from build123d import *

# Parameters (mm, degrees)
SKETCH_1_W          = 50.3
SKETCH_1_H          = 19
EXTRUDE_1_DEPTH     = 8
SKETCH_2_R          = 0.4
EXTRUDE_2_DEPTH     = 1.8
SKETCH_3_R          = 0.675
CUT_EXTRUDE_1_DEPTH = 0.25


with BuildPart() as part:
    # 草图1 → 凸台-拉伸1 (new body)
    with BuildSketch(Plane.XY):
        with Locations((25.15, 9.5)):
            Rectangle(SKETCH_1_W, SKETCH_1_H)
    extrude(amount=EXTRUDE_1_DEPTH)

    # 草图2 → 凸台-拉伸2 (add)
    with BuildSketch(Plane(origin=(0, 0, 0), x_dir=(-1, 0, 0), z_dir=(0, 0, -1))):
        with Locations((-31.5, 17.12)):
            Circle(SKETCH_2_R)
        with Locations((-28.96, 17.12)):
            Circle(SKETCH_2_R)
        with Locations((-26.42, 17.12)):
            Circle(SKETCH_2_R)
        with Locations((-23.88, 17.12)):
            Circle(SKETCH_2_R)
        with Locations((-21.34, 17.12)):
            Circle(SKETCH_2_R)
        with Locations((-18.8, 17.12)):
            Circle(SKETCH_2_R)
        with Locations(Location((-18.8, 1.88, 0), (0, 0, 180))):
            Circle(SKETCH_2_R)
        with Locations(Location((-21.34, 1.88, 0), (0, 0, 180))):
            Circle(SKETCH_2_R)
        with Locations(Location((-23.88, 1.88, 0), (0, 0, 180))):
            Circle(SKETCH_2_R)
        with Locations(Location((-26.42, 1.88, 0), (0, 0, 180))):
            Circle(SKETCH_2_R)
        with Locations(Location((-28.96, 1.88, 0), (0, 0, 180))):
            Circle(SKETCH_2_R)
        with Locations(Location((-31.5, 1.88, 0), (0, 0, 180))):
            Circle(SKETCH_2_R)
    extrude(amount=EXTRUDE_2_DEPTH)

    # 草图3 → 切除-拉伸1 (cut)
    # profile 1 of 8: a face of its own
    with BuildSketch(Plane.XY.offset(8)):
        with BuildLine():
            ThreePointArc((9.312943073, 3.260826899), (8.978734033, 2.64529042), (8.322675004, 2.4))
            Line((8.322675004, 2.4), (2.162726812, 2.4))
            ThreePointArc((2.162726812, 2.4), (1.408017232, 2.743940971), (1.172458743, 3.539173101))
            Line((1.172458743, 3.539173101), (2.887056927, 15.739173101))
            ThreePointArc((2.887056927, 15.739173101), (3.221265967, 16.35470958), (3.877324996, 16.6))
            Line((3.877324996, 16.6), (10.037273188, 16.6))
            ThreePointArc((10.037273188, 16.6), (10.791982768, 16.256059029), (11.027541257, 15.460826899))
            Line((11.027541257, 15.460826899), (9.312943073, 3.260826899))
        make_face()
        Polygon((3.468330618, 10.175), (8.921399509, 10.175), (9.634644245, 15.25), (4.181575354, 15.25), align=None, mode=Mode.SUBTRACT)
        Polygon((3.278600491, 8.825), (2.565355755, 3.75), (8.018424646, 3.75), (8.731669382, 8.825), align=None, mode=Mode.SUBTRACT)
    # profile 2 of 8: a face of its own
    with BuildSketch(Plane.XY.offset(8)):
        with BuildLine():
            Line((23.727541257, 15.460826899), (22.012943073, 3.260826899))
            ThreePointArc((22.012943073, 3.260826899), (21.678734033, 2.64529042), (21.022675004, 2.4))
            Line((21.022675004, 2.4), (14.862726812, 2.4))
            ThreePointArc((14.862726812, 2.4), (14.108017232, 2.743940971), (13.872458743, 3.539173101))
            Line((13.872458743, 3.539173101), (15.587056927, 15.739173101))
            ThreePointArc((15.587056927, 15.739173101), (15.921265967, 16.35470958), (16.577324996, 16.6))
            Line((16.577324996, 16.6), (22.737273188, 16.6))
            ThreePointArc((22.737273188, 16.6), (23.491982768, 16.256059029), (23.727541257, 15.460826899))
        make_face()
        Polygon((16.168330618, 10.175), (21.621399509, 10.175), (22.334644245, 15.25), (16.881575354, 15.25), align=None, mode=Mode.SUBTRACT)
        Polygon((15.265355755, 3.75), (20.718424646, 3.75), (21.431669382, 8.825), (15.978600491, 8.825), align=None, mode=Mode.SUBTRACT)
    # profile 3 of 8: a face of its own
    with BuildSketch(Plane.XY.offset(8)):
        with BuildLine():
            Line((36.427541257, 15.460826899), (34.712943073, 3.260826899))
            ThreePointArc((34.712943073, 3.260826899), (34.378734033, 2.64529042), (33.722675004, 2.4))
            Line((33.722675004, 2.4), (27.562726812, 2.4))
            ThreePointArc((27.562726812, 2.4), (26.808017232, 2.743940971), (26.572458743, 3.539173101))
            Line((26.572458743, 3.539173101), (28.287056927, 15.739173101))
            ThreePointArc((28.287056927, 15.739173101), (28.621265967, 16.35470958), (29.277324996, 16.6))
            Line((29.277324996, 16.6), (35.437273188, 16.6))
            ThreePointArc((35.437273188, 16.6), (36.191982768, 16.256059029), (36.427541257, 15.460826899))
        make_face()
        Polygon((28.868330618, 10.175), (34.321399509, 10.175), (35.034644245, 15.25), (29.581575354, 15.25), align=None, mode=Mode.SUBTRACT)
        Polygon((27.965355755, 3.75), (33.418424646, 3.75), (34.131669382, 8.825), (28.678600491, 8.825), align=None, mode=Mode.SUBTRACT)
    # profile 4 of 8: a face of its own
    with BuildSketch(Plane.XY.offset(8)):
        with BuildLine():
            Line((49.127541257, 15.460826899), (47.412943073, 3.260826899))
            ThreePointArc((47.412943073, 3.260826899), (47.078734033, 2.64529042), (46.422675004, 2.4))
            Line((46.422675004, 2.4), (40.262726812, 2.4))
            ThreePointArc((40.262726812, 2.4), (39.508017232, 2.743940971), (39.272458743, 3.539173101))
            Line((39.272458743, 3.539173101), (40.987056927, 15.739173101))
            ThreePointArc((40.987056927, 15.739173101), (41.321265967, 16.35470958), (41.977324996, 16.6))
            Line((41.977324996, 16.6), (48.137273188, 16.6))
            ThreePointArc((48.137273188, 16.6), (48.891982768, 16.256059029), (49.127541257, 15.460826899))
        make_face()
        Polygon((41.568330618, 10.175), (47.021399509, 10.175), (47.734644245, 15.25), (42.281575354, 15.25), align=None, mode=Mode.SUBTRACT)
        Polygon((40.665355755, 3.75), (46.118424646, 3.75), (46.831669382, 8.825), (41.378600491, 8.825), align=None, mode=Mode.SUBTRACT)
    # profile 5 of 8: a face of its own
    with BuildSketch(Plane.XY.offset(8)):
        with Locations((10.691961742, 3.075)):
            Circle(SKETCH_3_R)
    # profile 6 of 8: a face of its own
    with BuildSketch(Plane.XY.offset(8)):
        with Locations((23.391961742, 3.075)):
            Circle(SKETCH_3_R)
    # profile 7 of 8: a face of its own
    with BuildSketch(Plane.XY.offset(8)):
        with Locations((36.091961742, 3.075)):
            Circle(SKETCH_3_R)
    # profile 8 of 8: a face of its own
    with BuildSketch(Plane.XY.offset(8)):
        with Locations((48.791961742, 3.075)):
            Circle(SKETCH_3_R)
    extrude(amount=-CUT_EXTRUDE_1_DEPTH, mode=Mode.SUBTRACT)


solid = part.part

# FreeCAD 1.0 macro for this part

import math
import FreeCAD as App
import Part
import Sketcher

V = App.Vector
Q = App.Units.Quantity

doc = App.newDocument("Part")
params = doc.addObject("Spreadsheet::Sheet", "Params")
for row, (alias, value) in enumerate([
    ("sketch1_height", "19 mm"),
    ("sketch1_width", "50.3 mm"),
    ("pad1_length", "8 mm"),
    ("sketch2_diameter", "0.8 mm"),
    ("pad2_length", "1.8 mm"),
    ("sketch3_radius", "1 mm"),
    ("sketch3_diameter", "1.35 mm"),
    ("pocket1_length", "0.25 mm"),
], start=1):
    params.set(f"A{row}", alias)
    params.set(f"B{row}", "=" + value)
    params.setAlias(f"B{row}", alias)

body = doc.addObject("PartDesign::Body", "Body")

sketch1 = doc.addObject("Sketcher::SketchObject", "Sketch")
body.addObject(sketch1)
sketch1.AttachmentSupport = (doc.XY_Plane, [""])
sketch1.MapMode = "FlatFace"
sketch1.addGeometry([
    Part.LineSegment(V(0, 19, 0), V(0, 0, 0)),
    Part.LineSegment(V(0, 0, 0), V(50.3, 0, 0)),
    Part.LineSegment(V(50.3, 0, 0), V(50.3, 19, 0)),
    Part.LineSegment(V(50.3, 19, 0), V(0, 19, 0)),
], False)
sketch1.addConstraint([
    Sketcher.Constraint("Coincident", 0, 2, 1, 1),
    Sketcher.Constraint("Coincident", 1, 2, 2, 1),
    Sketcher.Constraint("Coincident", 2, 2, 3, 1),
    Sketcher.Constraint("Coincident", 3, 2, 0, 1),
    Sketcher.Constraint("Vertical", 0),
    Sketcher.Constraint("Horizontal", 1),
    Sketcher.Constraint("Vertical", 2),
    Sketcher.Constraint("Horizontal", 3),
    Sketcher.Constraint("Coincident", 0, 2, -1, 1),
    Sketcher.Constraint("DistanceY", 0, 2, 0, 1, 19.0),
    Sketcher.Constraint("DistanceX", 1, 1, 1, 2, 50.3),
])
sketch1.setExpression("Constraints[9]", "Params.sketch1_height")
sketch1.setExpression("Constraints[10]", "Params.sketch1_width")
pad1 = doc.addObject("PartDesign::Pad", "Pad")
body.addObject(pad1)
pad1.Profile = sketch1
pad1.setExpression("Length", "Params.pad1_length")

sketch2 = doc.addObject("Sketcher::SketchObject", "Sketch001")
body.addObject(sketch2)
sketch2.AttachmentSupport = (doc.XY_Plane, [""])
sketch2.MapMode = "FlatFace"
sketch2.addGeometry([
    Part.Circle(V(31.5, 17.12, 0), V(0, 0, 1), 0.4),
    Part.Circle(V(28.96, 17.12, 0), V(0, 0, 1), 0.4),
    Part.Circle(V(26.42, 17.12, 0), V(0, 0, 1), 0.4),
    Part.Circle(V(23.88, 17.12, 0), V(0, 0, 1), 0.4),
    Part.Circle(V(21.34, 17.12, 0), V(0, 0, 1), 0.4),
    Part.Circle(V(18.8, 17.12, 0), V(0, 0, 1), 0.4),
    Part.Circle(V(18.8, 1.88, 0), V(0, 0, 1), 0.4),
    Part.Circle(V(21.34, 1.88, 0), V(0, 0, 1), 0.4),
    Part.Circle(V(23.88, 1.88, 0), V(0, 0, 1), 0.4),
    Part.Circle(V(26.42, 1.88, 0), V(0, 0, 1), 0.4),
    Part.Circle(V(28.96, 1.88, 0), V(0, 0, 1), 0.4),
    Part.Circle(V(31.5, 1.88, 0), V(0, 0, 1), 0.4),
], False)
sketch2.addConstraint([
    Sketcher.Constraint("Equal", 0, 1),
    Sketcher.Constraint("Equal", 1, 2),
    Sketcher.Constraint("Equal", 2, 3),
    Sketcher.Constraint("Equal", 3, 4),
    Sketcher.Constraint("Equal", 4, 5),
    Sketcher.Constraint("Equal", 5, 6),
    Sketcher.Constraint("Equal", 6, 7),
    Sketcher.Constraint("Equal", 7, 8),
    Sketcher.Constraint("Equal", 8, 9),
    Sketcher.Constraint("Equal", 9, 10),
    Sketcher.Constraint("Equal", 10, 11),
    Sketcher.Constraint("Horizontal", 0, 3, 1, 3),
    Sketcher.Constraint("Horizontal", 1, 3, 2, 3),
    Sketcher.Constraint("Horizontal", 2, 3, 3, 3),
    Sketcher.Constraint("Horizontal", 3, 3, 4, 3),
    Sketcher.Constraint("Horizontal", 4, 3, 5, 3),
    Sketcher.Constraint("Horizontal", 6, 3, 7, 3),
    Sketcher.Constraint("Horizontal", 7, 3, 8, 3),
    Sketcher.Constraint("Horizontal", 8, 3, 9, 3),
    Sketcher.Constraint("Horizontal", 9, 3, 10, 3),
    Sketcher.Constraint("Horizontal", 10, 3, 11, 3),
    Sketcher.Constraint("Vertical", 5, 3, 6, 3),
    Sketcher.Constraint("Vertical", 4, 3, 7, 3),
    Sketcher.Constraint("Vertical", 3, 3, 8, 3),
    Sketcher.Constraint("Vertical", 2, 3, 9, 3),
    Sketcher.Constraint("Vertical", 1, 3, 10, 3),
    Sketcher.Constraint("Vertical", 0, 3, 11, 3),
    Sketcher.Constraint("Diameter", 0, 0.8),
    Sketcher.Constraint("DistanceX", -1, 1, 0, 3, 31.5),
    Sketcher.Constraint("DistanceX", -1, 1, 5, 3, 18.8),
    Sketcher.Constraint("DistanceY", -1, 1, 0, 3, 17.12),
    Sketcher.Constraint("DistanceX", -1, 1, 1, 3, 28.96),
    Sketcher.Constraint("DistanceX", -1, 1, 2, 3, 26.42),
    Sketcher.Constraint("DistanceX", -1, 1, 3, 3, 23.88),
    Sketcher.Constraint("DistanceX", -1, 1, 4, 3, 21.34),
    Sketcher.Constraint("DistanceY", -1, 1, 6, 3, 1.88),
])
sketch2.setExpression("Constraints[27]", "Params.sketch2_diameter")
pad2 = doc.addObject("PartDesign::Pad", "Pad001")
body.addObject(pad2)
pad2.Profile = sketch2
pad2.setExpression("Length", "Params.pad2_length")
pad2.Reversed = True

sketch3 = doc.addObject("Sketcher::SketchObject", "Sketch002")
body.addObject(sketch3)
sketch3.AttachmentSupport = (doc.XY_Plane, [""])
sketch3.MapMode = "FlatFace"
sketch3.AttachmentOffset = App.Placement(V(0, 0, 8), App.Rotation())
sketch3.addGeometry([
    Part.ArcOfCircle(Part.Circle(V(8.322675, 3.4, 0), V(0, 0, 1), 1), math.radians(-90), math.radians(-8)),
    Part.LineSegment(V(9.312943, 3.260827, 0), V(11.027541, 15.460827, 0)),
    Part.ArcOfCircle(Part.Circle(V(10.037273, 15.6, 0), V(0, 0, 1), 1), math.radians(-8), math.radians(90)),
    Part.LineSegment(V(10.037273, 16.6, 0), V(3.877325, 16.6, 0)),
    Part.ArcOfCircle(Part.Circle(V(3.877325, 15.6, 0), V(0, 0, 1), 1), math.radians(90), math.radians(172)),
    Part.LineSegment(V(2.887057, 15.739173, 0), V(1.172459, 3.539173, 0)),
    Part.ArcOfCircle(Part.Circle(V(2.162727, 3.4, 0), V(0, 0, 1), 1), math.radians(172), math.radians(270)),
    Part.LineSegment(V(2.162727, 2.4, 0), V(8.322675, 2.4, 0)),
    Part.LineSegment(V(3.2786, 8.825, 0), V(8.731669, 8.825, 0)),
    Part.LineSegment(V(8.731669, 8.825, 0), V(8.018425, 3.75, 0)),
    Part.LineSegment(V(8.018425, 3.75, 0), V(2.565356, 3.75, 0)),
    Part.LineSegment(V(2.565356, 3.75, 0), V(3.2786, 8.825, 0)),
    Part.LineSegment(V(3.468331, 10.175, 0), V(4.181575, 15.25, 0)),
    Part.LineSegment(V(4.181575, 15.25, 0), V(9.634644, 15.25, 0)),
    Part.LineSegment(V(9.634644, 15.25, 0), V(8.9214, 10.175, 0)),
    Part.LineSegment(V(8.9214, 10.175, 0), V(3.468331, 10.175, 0)),
    Part.LineSegment(V(22.012943, 3.260827, 0), V(23.727541, 15.460827, 0)),
    Part.ArcOfCircle(Part.Circle(V(22.737273, 15.6, 0), V(0, 0, 1), 1), math.radians(-8), math.radians(90)),
    Part.LineSegment(V(22.737273, 16.6, 0), V(16.577325, 16.6, 0)),
    Part.ArcOfCircle(Part.Circle(V(16.577325, 15.6, 0), V(0, 0, 1), 1), math.radians(90), math.radians(172)),
    Part.LineSegment(V(15.587057, 15.739173, 0), V(13.872459, 3.539173, 0)),
    Part.ArcOfCircle(Part.Circle(V(14.862727, 3.4, 0), V(0, 0, 1), 1), math.radians(172), math.radians(270)),
    Part.LineSegment(V(14.862727, 2.4, 0), V(21.022675, 2.4, 0)),
    Part.ArcOfCircle(Part.Circle(V(21.022675, 3.4, 0), V(0, 0, 1), 1), math.radians(-90), math.radians(-8)),
    Part.LineSegment(V(15.265356, 3.75, 0), V(15.9786, 8.825, 0)),
    Part.LineSegment(V(15.9786, 8.825, 0), V(21.431669, 8.825, 0)),
    Part.LineSegment(V(21.431669, 8.825, 0), V(20.718425, 3.75, 0)),
    Part.LineSegment(V(20.718425, 3.75, 0), V(15.265356, 3.75, 0)),
    Part.LineSegment(V(16.168331, 10.175, 0), V(16.881575, 15.25, 0)),
    Part.LineSegment(V(16.881575, 15.25, 0), V(22.334644, 15.25, 0)),
    Part.LineSegment(V(22.334644, 15.25, 0), V(21.6214, 10.175, 0)),
    Part.LineSegment(V(21.6214, 10.175, 0), V(16.168331, 10.175, 0)),
    Part.LineSegment(V(34.712943, 3.260827, 0), V(36.427541, 15.460827, 0)),
    Part.ArcOfCircle(Part.Circle(V(35.437273, 15.6, 0), V(0, 0, 1), 1), math.radians(-8), math.radians(90)),
    Part.LineSegment(V(35.437273, 16.6, 0), V(29.277325, 16.6, 0)),
    Part.ArcOfCircle(Part.Circle(V(29.277325, 15.6, 0), V(0, 0, 1), 1), math.radians(90), math.radians(172)),
    Part.LineSegment(V(28.287057, 15.739173, 0), V(26.572459, 3.539173, 0)),
    Part.ArcOfCircle(Part.Circle(V(27.562727, 3.4, 0), V(0, 0, 1), 1), math.radians(172), math.radians(270)),
    Part.LineSegment(V(27.562727, 2.4, 0), V(33.722675, 2.4, 0)),
    Part.ArcOfCircle(Part.Circle(V(33.722675, 3.4, 0), V(0, 0, 1), 1), math.radians(-90), math.radians(-8)),
    Part.LineSegment(V(27.965356, 3.75, 0), V(28.6786, 8.825, 0)),
    Part.LineSegment(V(28.6786, 8.825, 0), V(34.131669, 8.825, 0)),
    Part.LineSegment(V(34.131669, 8.825, 0), V(33.418425, 3.75, 0)),
    Part.LineSegment(V(33.418425, 3.75, 0), V(27.965356, 3.75, 0)),
    Part.LineSegment(V(28.868331, 10.175, 0), V(29.581575, 15.25, 0)),
    Part.LineSegment(V(29.581575, 15.25, 0), V(35.034644, 15.25, 0)),
    Part.LineSegment(V(35.034644, 15.25, 0), V(34.3214, 10.175, 0)),
    Part.LineSegment(V(34.3214, 10.175, 0), V(28.868331, 10.175, 0)),
    Part.LineSegment(V(47.412943, 3.260827, 0), V(49.127541, 15.460827, 0)),
    Part.ArcOfCircle(Part.Circle(V(48.137273, 15.6, 0), V(0, 0, 1), 1), math.radians(-8), math.radians(90)),
    Part.LineSegment(V(48.137273, 16.6, 0), V(41.977325, 16.6, 0)),
    Part.ArcOfCircle(Part.Circle(V(41.977325, 15.6, 0), V(0, 0, 1), 1), math.radians(90), math.radians(172)),
    Part.LineSegment(V(40.987057, 15.739173, 0), V(39.272459, 3.539173, 0)),
    Part.ArcOfCircle(Part.Circle(V(40.262727, 3.4, 0), V(0, 0, 1), 1), math.radians(172), math.radians(270)),
    Part.LineSegment(V(40.262727, 2.4, 0), V(46.422675, 2.4, 0)),
    Part.ArcOfCircle(Part.Circle(V(46.422675, 3.4, 0), V(0, 0, 1), 1), math.radians(-90), math.radians(-8)),
    Part.LineSegment(V(40.665356, 3.75, 0), V(41.3786, 8.825, 0)),
    Part.LineSegment(V(41.3786, 8.825, 0), V(46.831669, 8.825, 0)),
    Part.LineSegment(V(46.831669, 8.825, 0), V(46.118425, 3.75, 0)),
    Part.LineSegment(V(46.118425, 3.75, 0), V(40.665356, 3.75, 0)),
    Part.LineSegment(V(41.568331, 10.175, 0), V(42.281575, 15.25, 0)),
    Part.LineSegment(V(42.281575, 15.25, 0), V(47.734644, 15.25, 0)),
    Part.LineSegment(V(47.734644, 15.25, 0), V(47.0214, 10.175, 0)),
    Part.LineSegment(V(47.0214, 10.175, 0), V(41.568331, 10.175, 0)),
    Part.Circle(V(10.691962, 3.075, 0), V(0, 0, 1), 0.675),
    Part.Circle(V(23.391962, 3.075, 0), V(0, 0, 1), 0.675),
    Part.Circle(V(36.091962, 3.075, 0), V(0, 0, 1), 0.675),
    Part.Circle(V(48.791962, 3.075, 0), V(0, 0, 1), 0.675),
], False)
sketch3.addConstraint([
    Sketcher.Constraint("Tangent", 0, 2, 1, 1),
    Sketcher.Constraint("Tangent", 1, 2, 2, 1),
    Sketcher.Constraint("Tangent", 2, 2, 3, 1),
    Sketcher.Constraint("Tangent", 3, 2, 4, 1),
    Sketcher.Constraint("Tangent", 4, 2, 5, 1),
    Sketcher.Constraint("Tangent", 5, 2, 6, 1),
    Sketcher.Constraint("Tangent", 6, 2, 7, 1),
    Sketcher.Constraint("Tangent", 7, 2, 0, 1),
    Sketcher.Constraint("Coincident", 8, 2, 9, 1),
    Sketcher.Constraint("Coincident", 9, 2, 10, 1),
    Sketcher.Constraint("Coincident", 10, 2, 11, 1),
    Sketcher.Constraint("Coincident", 11, 2, 8, 1),
    Sketcher.Constraint("Coincident", 12, 2, 13, 1),
    Sketcher.Constraint("Coincident", 13, 2, 14, 1),
    Sketcher.Constraint("Coincident", 14, 2, 15, 1),
    Sketcher.Constraint("Coincident", 15, 2, 12, 1),
    Sketcher.Constraint("Tangent", 16, 2, 17, 1),
    Sketcher.Constraint("Tangent", 17, 2, 18, 1),
    Sketcher.Constraint("Tangent", 18, 2, 19, 1),
    Sketcher.Constraint("Tangent", 19, 2, 20, 1),
    Sketcher.Constraint("Tangent", 20, 2, 21, 1),
    Sketcher.Constraint("Tangent", 21, 2, 22, 1),
    Sketcher.Constraint("Tangent", 22, 2, 23, 1),
    Sketcher.Constraint("Tangent", 23, 2, 16, 1),
    Sketcher.Constraint("Coincident", 24, 2, 25, 1),
    Sketcher.Constraint("Coincident", 25, 2, 26, 1),
    Sketcher.Constraint("Coincident", 26, 2, 27, 1),
    Sketcher.Constraint("Coincident", 27, 2, 24, 1),
    Sketcher.Constraint("Coincident", 28, 2, 29, 1),
    Sketcher.Constraint("Coincident", 29, 2, 30, 1),
    Sketcher.Constraint("Coincident", 30, 2, 31, 1),
    Sketcher.Constraint("Coincident", 31, 2, 28, 1),
    Sketcher.Constraint("Tangent", 32, 2, 33, 1),
    Sketcher.Constraint("Tangent", 33, 2, 34, 1),
    Sketcher.Constraint("Tangent", 34, 2, 35, 1),
    Sketcher.Constraint("Tangent", 35, 2, 36, 1),
    Sketcher.Constraint("Tangent", 36, 2, 37, 1),
    Sketcher.Constraint("Tangent", 37, 2, 38, 1),
    Sketcher.Constraint("Tangent", 38, 2, 39, 1),
    Sketcher.Constraint("Tangent", 39, 2, 32, 1),
    Sketcher.Constraint("Coincident", 40, 2, 41, 1),
    Sketcher.Constraint("Coincident", 41, 2, 42, 1),
    Sketcher.Constraint("Coincident", 42, 2, 43, 1),
    Sketcher.Constraint("Coincident", 43, 2, 40, 1),
    Sketcher.Constraint("Coincident", 44, 2, 45, 1),
    Sketcher.Constraint("Coincident", 45, 2, 46, 1),
    Sketcher.Constraint("Coincident", 46, 2, 47, 1),
    Sketcher.Constraint("Coincident", 47, 2, 44, 1),
    Sketcher.Constraint("Tangent", 48, 2, 49, 1),
    Sketcher.Constraint("Tangent", 49, 2, 50, 1),
    Sketcher.Constraint("Tangent", 50, 2, 51, 1),
    Sketcher.Constraint("Tangent", 51, 2, 52, 1),
    Sketcher.Constraint("Tangent", 52, 2, 53, 1),
    Sketcher.Constraint("Tangent", 53, 2, 54, 1),
    Sketcher.Constraint("Tangent", 54, 2, 55, 1),
    Sketcher.Constraint("Tangent", 55, 2, 48, 1),
    Sketcher.Constraint("Coincident", 56, 2, 57, 1),
    Sketcher.Constraint("Coincident", 57, 2, 58, 1),
    Sketcher.Constraint("Coincident", 58, 2, 59, 1),
    Sketcher.Constraint("Coincident", 59, 2, 56, 1),
    Sketcher.Constraint("Coincident", 60, 2, 61, 1),
    Sketcher.Constraint("Coincident", 61, 2, 62, 1),
    Sketcher.Constraint("Coincident", 62, 2, 63, 1),
    Sketcher.Constraint("Coincident", 63, 2, 60, 1),
    Sketcher.Constraint("Horizontal", 3),
    Sketcher.Constraint("Horizontal", 7),
    Sketcher.Constraint("Horizontal", 8),
    Sketcher.Constraint("Horizontal", 10),
    Sketcher.Constraint("Horizontal", 13),
    Sketcher.Constraint("Horizontal", 15),
    Sketcher.Constraint("Horizontal", 18),
    Sketcher.Constraint("Horizontal", 22),
    Sketcher.Constraint("Horizontal", 25),
    Sketcher.Constraint("Horizontal", 27),
    Sketcher.Constraint("Horizontal", 29),
    Sketcher.Constraint("Horizontal", 31),
    Sketcher.Constraint("Horizontal", 34),
    Sketcher.Constraint("Horizontal", 38),
    Sketcher.Constraint("Horizontal", 41),
    Sketcher.Constraint("Horizontal", 43),
    Sketcher.Constraint("Horizontal", 45),
    Sketcher.Constraint("Horizontal", 47),
    Sketcher.Constraint("Horizontal", 50),
    Sketcher.Constraint("Horizontal", 54),
    Sketcher.Constraint("Horizontal", 57),
    Sketcher.Constraint("Horizontal", 59),
    Sketcher.Constraint("Horizontal", 61),
    Sketcher.Constraint("Horizontal", 63),
    Sketcher.Constraint("Equal", 0, 2),
    Sketcher.Constraint("Equal", 2, 4),
    Sketcher.Constraint("Equal", 4, 6),
    Sketcher.Constraint("Equal", 6, 17),
    Sketcher.Constraint("Equal", 17, 19),
    Sketcher.Constraint("Equal", 19, 21),
    Sketcher.Constraint("Equal", 21, 23),
    Sketcher.Constraint("Equal", 23, 33),
    Sketcher.Constraint("Equal", 33, 35),
    Sketcher.Constraint("Equal", 35, 37),
    Sketcher.Constraint("Equal", 37, 39),
    Sketcher.Constraint("Equal", 39, 49),
    Sketcher.Constraint("Equal", 49, 51),
    Sketcher.Constraint("Equal", 51, 53),
    Sketcher.Constraint("Equal", 53, 55),
    Sketcher.Constraint("Equal", 64, 65),
    Sketcher.Constraint("Equal", 65, 66),
    Sketcher.Constraint("Equal", 66, 67),
    Sketcher.Constraint("Parallel", 1, 5),
    Sketcher.Constraint("Parallel", 5, 9),
    Sketcher.Constraint("Parallel", 9, 11),
    Sketcher.Constraint("Parallel", 11, 12),
    Sketcher.Constraint("Parallel", 12, 14),
    Sketcher.Constraint("Parallel", 14, 16),
    Sketcher.Constraint("Parallel", 16, 20),
    Sketcher.Constraint("Parallel", 20, 24),
    Sketcher.Constraint("Parallel", 24, 26),
    Sketcher.Constraint("Parallel", 26, 28),
    Sketcher.Constraint("Parallel", 28, 30),
    Sketcher.Constraint("Parallel", 30, 32),
    Sketcher.Constraint("Parallel", 32, 36),
    Sketcher.Constraint("Parallel", 36, 40),
    Sketcher.Constraint("Parallel", 40, 42),
    Sketcher.Constraint("Parallel", 42, 44),
    Sketcher.Constraint("Parallel", 44, 46),
    Sketcher.Constraint("Parallel", 46, 48),
    Sketcher.Constraint("Parallel", 48, 52),
    Sketcher.Constraint("Parallel", 52, 56),
    Sketcher.Constraint("Parallel", 56, 58),
    Sketcher.Constraint("Parallel", 58, 60),
    Sketcher.Constraint("Parallel", 60, 62),
    Sketcher.Constraint("Horizontal", 4, 3, 17, 3),
    Sketcher.Constraint("Horizontal", 6, 3, 21, 3),
    Sketcher.Constraint("Horizontal", 19, 3, 33, 3),
    Sketcher.Constraint("Horizontal", 23, 3, 37, 3),
    Sketcher.Constraint("Horizontal", 35, 3, 49, 3),
    Sketcher.Constraint("Horizontal", 39, 3, 53, 3),
    Sketcher.Constraint("Horizontal", 64, 3, 65, 3),
    Sketcher.Constraint("Horizontal", 65, 3, 66, 3),
    Sketcher.Constraint("Horizontal", 66, 3, 67, 3),
    Sketcher.Constraint("Horizontal", 11, 2, 24, 2),
    Sketcher.Constraint("Horizontal", 10, 2, 26, 2),
    Sketcher.Constraint("Horizontal", 13, 2, 28, 2),
    Sketcher.Constraint("Horizontal", 15, 2, 30, 2),
    Sketcher.Constraint("Horizontal", 25, 2, 40, 2),
    Sketcher.Constraint("Horizontal", 27, 2, 42, 2),
    Sketcher.Constraint("Horizontal", 29, 2, 44, 2),
    Sketcher.Constraint("Horizontal", 31, 2, 46, 2),
    Sketcher.Constraint("Horizontal", 41, 2, 56, 2),
    Sketcher.Constraint("Horizontal", 43, 2, 58, 2),
    Sketcher.Constraint("Horizontal", 45, 2, 60, 2),
    Sketcher.Constraint("Horizontal", 47, 2, 62, 2),
    Sketcher.Constraint("Equal", 10, 13),
    Sketcher.Constraint("Equal", 7, 18),
    Sketcher.Constraint("Equal", 15, 25),
    Sketcher.Constraint("Equal", 27, 29),
    Sketcher.Constraint("Equal", 22, 34),
    Sketcher.Constraint("Equal", 31, 41),
    Sketcher.Constraint("Equal", 43, 45),
    Sketcher.Constraint("Equal", 38, 50),
    Sketcher.Constraint("Equal", 47, 57),
    Sketcher.Constraint("Equal", 59, 61),
    Sketcher.Constraint("Equal", 11, 12),
    Sketcher.Constraint("Radius", 0, 1.0),
    Sketcher.Constraint("Diameter", 64, 1.35),
    Sketcher.Constraint("Angle", 1, Q("82 deg")),
    Sketcher.Constraint("DistanceY", -1, 1, 0, 3, 3.4),
    Sketcher.Constraint("DistanceY", -1, 1, 2, 3, 15.6),
    Sketcher.Constraint("DistanceY", -1, 1, 9, 2, 3.75),
    Sketcher.Constraint("DistanceY", -1, 1, 12, 2, 15.25),
    Sketcher.Constraint("DistanceY", -1, 1, 64, 3, 3.075),
    Sketcher.Constraint("DistanceY", -1, 1, 8, 2, 8.825),
    Sketcher.Constraint("DistanceX", 3, 2, 3, 1, 6.159948),
    Sketcher.Constraint("DistanceX", 8, 1, 8, 2, 5.453069),
    Sketcher.Constraint("DistanceX", -1, 1, 11, 2, 3.2786),
    Sketcher.Constraint("DistanceX", -1, 1, 14, 2, 8.9214),
    Sketcher.Constraint("DistanceX", -1, 1, 24, 2, 15.9786),
    Sketcher.Constraint("DistanceX", -1, 1, 30, 2, 21.6214),
    Sketcher.Constraint("DistanceX", -1, 1, 40, 2, 28.6786),
    Sketcher.Constraint("DistanceX", -1, 1, 46, 2, 34.3214),
    Sketcher.Constraint("DistanceX", -1, 1, 56, 2, 41.3786),
    Sketcher.Constraint("DistanceX", -1, 1, 62, 2, 47.0214),
    Sketcher.Constraint("DistanceX", -1, 1, 64, 3, 10.691962),
    Sketcher.Constraint("DistanceX", -1, 1, 65, 3, 23.391962),
    Sketcher.Constraint("DistanceX", -1, 1, 66, 3, 36.091962),
    Sketcher.Constraint("DistanceX", -1, 1, 67, 3, 48.791962),
    Sketcher.Constraint("DistanceX", -1, 1, 1, 2, 11.027541),
    Sketcher.Constraint("DistanceX", -1, 1, 16, 2, 23.727541),
    Sketcher.Constraint("DistanceX", -1, 1, 32, 2, 36.427541),
    Sketcher.Constraint("DistanceX", -1, 1, 48, 2, 49.127541),
])
sketch3.setExpression("Constraints[161]", "Params.sketch3_radius")
sketch3.setExpression("Constraints[162]", "Params.sketch3_diameter")
pocket1 = doc.addObject("PartDesign::Pocket", "Pocket")
body.addObject(pocket1)
pocket1.Profile = sketch3
pocket1.setExpression("Length", "Params.pocket1_length")

doc.recompute()
